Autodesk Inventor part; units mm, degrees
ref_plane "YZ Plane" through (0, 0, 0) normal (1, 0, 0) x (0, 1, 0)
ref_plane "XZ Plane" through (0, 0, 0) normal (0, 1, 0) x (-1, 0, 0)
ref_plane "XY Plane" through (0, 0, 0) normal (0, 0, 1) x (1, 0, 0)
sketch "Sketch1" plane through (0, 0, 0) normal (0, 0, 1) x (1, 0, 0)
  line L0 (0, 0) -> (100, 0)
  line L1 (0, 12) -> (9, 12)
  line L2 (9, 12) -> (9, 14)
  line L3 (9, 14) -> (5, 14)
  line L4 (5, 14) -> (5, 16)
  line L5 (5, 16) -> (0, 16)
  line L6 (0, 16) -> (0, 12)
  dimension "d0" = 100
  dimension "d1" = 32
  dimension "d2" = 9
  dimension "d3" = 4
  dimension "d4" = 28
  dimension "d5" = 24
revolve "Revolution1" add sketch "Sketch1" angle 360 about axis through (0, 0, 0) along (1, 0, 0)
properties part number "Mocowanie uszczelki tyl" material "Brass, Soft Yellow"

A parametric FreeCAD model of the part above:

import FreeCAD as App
import Part
import Sketcher
from FreeCAD import Vector
Q = App.Units.Quantity

doc = App.newDocument("Part")
body = doc.addObject("PartDesign::Body", "Body")

sketch1 = doc.addObject("Sketcher::SketchObject", "Sketch")
body.addObject(sketch1)
sketch1.AttachmentSupport = (doc.XY_Plane, [""])
sketch1.MapMode = "FlatFace"
sketch1.addGeometry(Part.LineSegment(Vector(0, 16, 0), Vector(0, 12, 0)), False)
sketch1.addGeometry(Part.LineSegment(Vector(0, 12, 0), Vector(9, 12, 0)), False)
sketch1.addGeometry(Part.LineSegment(Vector(9, 12, 0), Vector(9, 14, 0)), False)
sketch1.addGeometry(Part.LineSegment(Vector(9, 14, 0), Vector(5, 14, 0)), False)
sketch1.addGeometry(Part.LineSegment(Vector(5, 14, 0), Vector(5, 16, 0)), False)
sketch1.addGeometry(Part.LineSegment(Vector(5, 16, 0), Vector(0, 16, 0)), False)
sketch1.addConstraint(Sketcher.Constraint("Coincident", 0, 2, 1, 1))
sketch1.addConstraint(Sketcher.Constraint("Coincident", 1, 2, 2, 1))
sketch1.addConstraint(Sketcher.Constraint("Coincident", 2, 2, 3, 1))
sketch1.addConstraint(Sketcher.Constraint("Coincident", 3, 2, 4, 1))
sketch1.addConstraint(Sketcher.Constraint("Coincident", 4, 2, 5, 1))
sketch1.addConstraint(Sketcher.Constraint("Coincident", 5, 2, 0, 1))
sketch1.addConstraint(Sketcher.Constraint("Vertical", 0))
sketch1.addConstraint(Sketcher.Constraint("Horizontal", 1))
sketch1.addConstraint(Sketcher.Constraint("Vertical", 2))
sketch1.addConstraint(Sketcher.Constraint("Horizontal", 3))
sketch1.addConstraint(Sketcher.Constraint("Vertical", 4))
sketch1.addConstraint(Sketcher.Constraint("Horizontal", 5))
sketch1.addConstraint(Sketcher.Constraint("PointOnObject", 0, 2, -2))
sketch1.addConstraint(Sketcher.Constraint("Equal", 3, 0))
sketch1.addConstraint(Sketcher.Constraint("Equal", 2, 4))
sketch1.addConstraint(Sketcher.Constraint("DistanceX", 1, 1, 1, 2, Q("9 mm")))
sketch1.addConstraint(Sketcher.Constraint("DistanceX", 3, 2, 3, 1, Q("4 mm")))
sketch1.addConstraint(Sketcher.Constraint("DistanceY", -1, 1, 0, 2, Q("12 mm")))
revolution = doc.addObject("PartDesign::Revolution", "Revolution")
body.addObject(revolution)
revolution.Profile = sketch1
revolution.ReferenceAxis = (sketch1, ["H_Axis"])
revolution.Angle = 360

doc.recompute()
